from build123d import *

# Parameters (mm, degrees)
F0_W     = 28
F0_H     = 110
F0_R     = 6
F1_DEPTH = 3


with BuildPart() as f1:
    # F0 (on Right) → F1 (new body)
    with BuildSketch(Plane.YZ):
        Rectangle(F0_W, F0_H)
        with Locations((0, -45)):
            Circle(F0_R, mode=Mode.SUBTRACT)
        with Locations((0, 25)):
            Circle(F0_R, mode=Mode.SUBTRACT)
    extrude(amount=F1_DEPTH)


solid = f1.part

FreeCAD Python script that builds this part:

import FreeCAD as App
import Part
import Sketcher
from FreeCAD import Vector
Q = App.Units.Quantity

doc = App.newDocument("Part")
body = doc.addObject("PartDesign::Body", "Body")

# Sketch on YZ plane
sketch1 = body.newObject("Sketcher::SketchObject", "Sketch")
sketch1.AttachmentSupport = (doc.getObject("YZ_Plane"), [""])
sketch1.MapMode = "FlatFace"
sketch1.addGeometry([
    Part.LineSegment(Vector(-14, 55, 0), Vector(-14, -55, 0)),  # 0
    Part.LineSegment(Vector(-14, -55, 0), Vector(14, -55, 0)),  # 1
    Part.LineSegment(Vector(14, -55, 0), Vector(14, 55, 0)),  # 2
    Part.LineSegment(Vector(14, 55, 0), Vector(-14, 55, 0)),  # 3
    Part.Circle(Vector(0, -45, 0), Vector(0, 0, 1), 6),  # 4
    Part.Circle(Vector(0, 25, 0), Vector(0, 0, 1), 6),  # 5
], False)
sketch1.addConstraint([
    Sketcher.Constraint("Coincident", 0, 2, 1, 1),
    Sketcher.Constraint("Coincident", 1, 2, 2, 1),
    Sketcher.Constraint("Coincident", 2, 2, 3, 1),
    Sketcher.Constraint("Coincident", 3, 2, 0, 1),
    Sketcher.Constraint("Vertical", 0),
    Sketcher.Constraint("Horizontal", 1),
    Sketcher.Constraint("Vertical", 2),
    Sketcher.Constraint("Horizontal", 3),
    Sketcher.Constraint("Equal", 4, 5),
    Sketcher.Constraint("Symmetric", 0, 2, 2, 2, -1, 1),
    Sketcher.Constraint("PointOnObject", 4, 3, -2),
    Sketcher.Constraint("PointOnObject", 5, 3, -2),
    Sketcher.Constraint("Diameter", 4, Q("12 mm")),
    Sketcher.Constraint("DistanceX", 1, 1, 1, 2, Q("28 mm")),
    Sketcher.Constraint("DistanceY", 0, 2, 0, 1, Q("110 mm")),
    Sketcher.Constraint("DistanceY", 4, 3, -1, 1, Q("45 mm")),
    Sketcher.Constraint("DistanceY", -1, 1, 5, 3, Q("25 mm")),
])
pad1 = body.newObject("PartDesign::Pad", "Pad")
pad1.Profile = sketch1
pad1.Length = 3

doc.recompute()
